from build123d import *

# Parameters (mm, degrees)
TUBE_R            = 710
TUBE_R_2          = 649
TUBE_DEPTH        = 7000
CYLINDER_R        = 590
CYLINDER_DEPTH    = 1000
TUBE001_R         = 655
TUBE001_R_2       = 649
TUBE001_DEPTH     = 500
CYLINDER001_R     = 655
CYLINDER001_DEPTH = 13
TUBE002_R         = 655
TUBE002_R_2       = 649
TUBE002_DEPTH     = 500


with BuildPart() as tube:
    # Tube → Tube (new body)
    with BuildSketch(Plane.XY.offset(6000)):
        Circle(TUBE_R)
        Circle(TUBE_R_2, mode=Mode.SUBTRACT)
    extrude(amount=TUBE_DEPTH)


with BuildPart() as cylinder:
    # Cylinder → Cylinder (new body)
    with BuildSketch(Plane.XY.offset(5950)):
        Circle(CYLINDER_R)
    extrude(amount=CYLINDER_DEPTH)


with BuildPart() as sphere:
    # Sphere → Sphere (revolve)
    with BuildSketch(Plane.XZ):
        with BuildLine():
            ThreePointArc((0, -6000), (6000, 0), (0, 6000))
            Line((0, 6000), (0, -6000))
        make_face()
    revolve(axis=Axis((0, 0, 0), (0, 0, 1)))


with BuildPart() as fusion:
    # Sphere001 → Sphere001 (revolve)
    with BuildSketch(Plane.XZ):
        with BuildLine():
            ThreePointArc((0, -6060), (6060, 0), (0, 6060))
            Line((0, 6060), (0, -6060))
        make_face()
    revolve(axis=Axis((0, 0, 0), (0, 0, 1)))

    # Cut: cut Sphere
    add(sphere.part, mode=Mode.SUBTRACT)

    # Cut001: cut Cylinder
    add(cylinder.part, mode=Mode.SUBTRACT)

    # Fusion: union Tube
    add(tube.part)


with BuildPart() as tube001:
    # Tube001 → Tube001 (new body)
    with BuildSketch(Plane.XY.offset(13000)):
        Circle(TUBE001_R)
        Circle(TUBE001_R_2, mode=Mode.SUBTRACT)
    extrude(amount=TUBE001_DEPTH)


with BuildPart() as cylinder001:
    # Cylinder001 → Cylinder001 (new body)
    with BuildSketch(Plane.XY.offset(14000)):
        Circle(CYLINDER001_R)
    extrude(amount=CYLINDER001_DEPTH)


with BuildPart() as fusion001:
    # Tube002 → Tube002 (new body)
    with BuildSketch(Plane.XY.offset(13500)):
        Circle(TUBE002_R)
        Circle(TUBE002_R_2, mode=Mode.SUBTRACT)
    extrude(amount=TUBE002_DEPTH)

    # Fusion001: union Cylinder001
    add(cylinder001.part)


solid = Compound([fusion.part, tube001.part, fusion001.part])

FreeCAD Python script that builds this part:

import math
import FreeCAD as App
import Part
import Sketcher
from FreeCAD import Vector

doc = App.newDocument("Part")
body = doc.addObject("PartDesign::Body", "Body")

sketch1 = body.newObject("Sketcher::SketchObject", "Sketch")
sketch1.AttachmentSupport = (doc.getObject("XY_Plane"), [""])
sketch1.MapMode = "FlatFace"
sketch1.AttachmentOffset = App.Placement(Vector(0, 0, 6000), App.Rotation())
sketch1.addGeometry([
    Part.Circle(Vector(0, 0, 0), Vector(0, 0, 1), 710),
    Part.Circle(Vector(0, 0, 0), Vector(0, 0, 1), 649),
], False)
sketch1.addConstraint([
    Sketcher.Constraint("Coincident", 0, 3, -1, 1),
    Sketcher.Constraint("Coincident", 1, 3, -1, 1),
    Sketcher.Constraint("Diameter", 0, 1420.0),
    Sketcher.Constraint("Diameter", 1, 1298.0),
])
pad1 = body.newObject("PartDesign::Pad", "Pad")
pad1.Profile = sketch1
pad1.Length = 7000
body2 = doc.addObject("PartDesign::Body", "Body001")

sketch2 = body2.newObject("Sketcher::SketchObject", "Sketch001")
sketch2.AttachmentSupport = (doc.getObject("XY_Plane001"), [""])
sketch2.MapMode = "FlatFace"
sketch2.AttachmentOffset = App.Placement(Vector(0, 0, 5950), App.Rotation())
sketch2.addGeometry(Part.Circle(Vector(0, 0, 0), Vector(0, 0, 1), 590), False)
sketch2.addConstraint([
    Sketcher.Constraint("Coincident", 0, 3, -1, 1),
    Sketcher.Constraint("Diameter", 0, 1180.0),
])
pad2 = body2.newObject("PartDesign::Pad", "Pad001")
pad2.Profile = sketch2
pad2.Length = 1000
body3 = doc.addObject("PartDesign::Body", "Body002")

sketch3 = body3.newObject("Sketcher::SketchObject", "Sketch002")
sketch3.AttachmentSupport = (doc.getObject("XZ_Plane002"), [""])
sketch3.MapMode = "FlatFace"
sketch3.addGeometry([
    Part.ArcOfCircle(Part.Circle(Vector(0, 0, 0), Vector(0, 0, 1), 6000), math.radians(-90), math.radians(90)),
    Part.LineSegment(Vector(0, 6000, 0), Vector(0, -6000, 0)),
], False)
sketch3.addConstraint([
    Sketcher.Constraint("Coincident", 0, 1, 1, 2),
    Sketcher.Constraint("Coincident", 1, 1, 0, 2),
    Sketcher.Constraint("Vertical", 1),
    Sketcher.Constraint("Coincident", 0, 3, -1, 1),
    Sketcher.Constraint("PointOnObject", 1, 1, -2),
    Sketcher.Constraint("Radius", 0, 6000.0),
])
revolution = body3.newObject("PartDesign::Revolution", "Revolution")
revolution.Profile = sketch3
revolution.ReferenceAxis = (sketch3, ["V_Axis"])
revolution.Angle = 360
body4 = doc.addObject("PartDesign::Body", "Body003")

sketch4 = body4.newObject("Sketcher::SketchObject", "Sketch003")
sketch4.AttachmentSupport = (doc.getObject("XZ_Plane003"), [""])
sketch4.MapMode = "FlatFace"
sketch4.addGeometry([
    Part.ArcOfCircle(Part.Circle(Vector(0, 0, 0), Vector(0, 0, 1), 6060), math.radians(-90), math.radians(90)),
    Part.LineSegment(Vector(0, 6060, 0), Vector(0, -6060, 0)),
], False)
sketch4.addConstraint([
    Sketcher.Constraint("Coincident", 0, 1, 1, 2),
    Sketcher.Constraint("Coincident", 1, 1, 0, 2),
    Sketcher.Constraint("Vertical", 1),
    Sketcher.Constraint("Coincident", 0, 3, -1, 1),
    Sketcher.Constraint("PointOnObject", 1, 1, -2),
    Sketcher.Constraint("Radius", 0, 6060.0),
])
revolution2 = body4.newObject("PartDesign::Revolution", "Revolution001")
revolution2.Profile = sketch4
revolution2.ReferenceAxis = (sketch4, ["V_Axis"])
revolution2.Angle = 360
doc.recompute()

boolean = body4.newObject("PartDesign::Boolean", "Boolean")
boolean.Type = "Cut"
boolean.addObjects([body3])
doc.recompute()

boolean2 = body4.newObject("PartDesign::Boolean", "Boolean001")
boolean2.Type = "Cut"
boolean2.addObjects([body2])
doc.recompute()

boolean3 = body4.newObject("PartDesign::Boolean", "Boolean002")
boolean3.Type = "Fuse"
boolean3.addObjects([body])
body5 = doc.addObject("PartDesign::Body", "Body004")

sketch5 = body5.newObject("Sketcher::SketchObject", "Sketch004")
sketch5.AttachmentSupport = (doc.getObject("XY_Plane004"), [""])
sketch5.MapMode = "FlatFace"
sketch5.AttachmentOffset = App.Placement(Vector(0, 0, 13000), App.Rotation())
sketch5.addGeometry([
    Part.Circle(Vector(0, 0, 0), Vector(0, 0, 1), 655),
    Part.Circle(Vector(0, 0, 0), Vector(0, 0, 1), 649),
], False)
sketch5.addConstraint([
    Sketcher.Constraint("Coincident", 0, 3, -1, 1),
    Sketcher.Constraint("Coincident", 1, 3, -1, 1),
    Sketcher.Constraint("Diameter", 0, 1310.0),
    Sketcher.Constraint("Diameter", 1, 1298.0),
])
pad3 = body5.newObject("PartDesign::Pad", "Pad002")
pad3.Profile = sketch5
pad3.Length = 500
body6 = doc.addObject("PartDesign::Body", "Body005")

sketch6 = body6.newObject("Sketcher::SketchObject", "Sketch005")
sketch6.AttachmentSupport = (doc.getObject("XY_Plane005"), [""])
sketch6.MapMode = "FlatFace"
sketch6.AttachmentOffset = App.Placement(Vector(0, 0, 14000), App.Rotation())
sketch6.addGeometry(Part.Circle(Vector(0, 0, 0), Vector(0, 0, 1), 655), False)
sketch6.addConstraint([
    Sketcher.Constraint("Coincident", 0, 3, -1, 1),
    Sketcher.Constraint("Diameter", 0, 1310.0),
])
pad4 = body6.newObject("PartDesign::Pad", "Pad003")
pad4.Profile = sketch6
pad4.Length = 13
body7 = doc.addObject("PartDesign::Body", "Body006")

sketch7 = body7.newObject("Sketcher::SketchObject", "Sketch006")
sketch7.AttachmentSupport = (doc.getObject("XY_Plane006"), [""])
sketch7.MapMode = "FlatFace"
sketch7.AttachmentOffset = App.Placement(Vector(0, 0, 13500), App.Rotation())
sketch7.addGeometry([
    Part.Circle(Vector(0, 0, 0), Vector(0, 0, 1), 655),
    Part.Circle(Vector(0, 0, 0), Vector(0, 0, 1), 649),
], False)
sketch7.addConstraint([
    Sketcher.Constraint("Coincident", 0, 3, -1, 1),
    Sketcher.Constraint("Coincident", 1, 3, -1, 1),
    Sketcher.Constraint("Diameter", 0, 1310.0),
    Sketcher.Constraint("Diameter", 1, 1298.0),
])
pad5 = body7.newObject("PartDesign::Pad", "Pad004")
pad5.Profile = sketch7
pad5.Length = 500
doc.recompute()

boolean4 = body7.newObject("PartDesign::Boolean", "Boolean003")
boolean4.Type = "Fuse"
boolean4.addObjects([body6])

doc.recompute()
